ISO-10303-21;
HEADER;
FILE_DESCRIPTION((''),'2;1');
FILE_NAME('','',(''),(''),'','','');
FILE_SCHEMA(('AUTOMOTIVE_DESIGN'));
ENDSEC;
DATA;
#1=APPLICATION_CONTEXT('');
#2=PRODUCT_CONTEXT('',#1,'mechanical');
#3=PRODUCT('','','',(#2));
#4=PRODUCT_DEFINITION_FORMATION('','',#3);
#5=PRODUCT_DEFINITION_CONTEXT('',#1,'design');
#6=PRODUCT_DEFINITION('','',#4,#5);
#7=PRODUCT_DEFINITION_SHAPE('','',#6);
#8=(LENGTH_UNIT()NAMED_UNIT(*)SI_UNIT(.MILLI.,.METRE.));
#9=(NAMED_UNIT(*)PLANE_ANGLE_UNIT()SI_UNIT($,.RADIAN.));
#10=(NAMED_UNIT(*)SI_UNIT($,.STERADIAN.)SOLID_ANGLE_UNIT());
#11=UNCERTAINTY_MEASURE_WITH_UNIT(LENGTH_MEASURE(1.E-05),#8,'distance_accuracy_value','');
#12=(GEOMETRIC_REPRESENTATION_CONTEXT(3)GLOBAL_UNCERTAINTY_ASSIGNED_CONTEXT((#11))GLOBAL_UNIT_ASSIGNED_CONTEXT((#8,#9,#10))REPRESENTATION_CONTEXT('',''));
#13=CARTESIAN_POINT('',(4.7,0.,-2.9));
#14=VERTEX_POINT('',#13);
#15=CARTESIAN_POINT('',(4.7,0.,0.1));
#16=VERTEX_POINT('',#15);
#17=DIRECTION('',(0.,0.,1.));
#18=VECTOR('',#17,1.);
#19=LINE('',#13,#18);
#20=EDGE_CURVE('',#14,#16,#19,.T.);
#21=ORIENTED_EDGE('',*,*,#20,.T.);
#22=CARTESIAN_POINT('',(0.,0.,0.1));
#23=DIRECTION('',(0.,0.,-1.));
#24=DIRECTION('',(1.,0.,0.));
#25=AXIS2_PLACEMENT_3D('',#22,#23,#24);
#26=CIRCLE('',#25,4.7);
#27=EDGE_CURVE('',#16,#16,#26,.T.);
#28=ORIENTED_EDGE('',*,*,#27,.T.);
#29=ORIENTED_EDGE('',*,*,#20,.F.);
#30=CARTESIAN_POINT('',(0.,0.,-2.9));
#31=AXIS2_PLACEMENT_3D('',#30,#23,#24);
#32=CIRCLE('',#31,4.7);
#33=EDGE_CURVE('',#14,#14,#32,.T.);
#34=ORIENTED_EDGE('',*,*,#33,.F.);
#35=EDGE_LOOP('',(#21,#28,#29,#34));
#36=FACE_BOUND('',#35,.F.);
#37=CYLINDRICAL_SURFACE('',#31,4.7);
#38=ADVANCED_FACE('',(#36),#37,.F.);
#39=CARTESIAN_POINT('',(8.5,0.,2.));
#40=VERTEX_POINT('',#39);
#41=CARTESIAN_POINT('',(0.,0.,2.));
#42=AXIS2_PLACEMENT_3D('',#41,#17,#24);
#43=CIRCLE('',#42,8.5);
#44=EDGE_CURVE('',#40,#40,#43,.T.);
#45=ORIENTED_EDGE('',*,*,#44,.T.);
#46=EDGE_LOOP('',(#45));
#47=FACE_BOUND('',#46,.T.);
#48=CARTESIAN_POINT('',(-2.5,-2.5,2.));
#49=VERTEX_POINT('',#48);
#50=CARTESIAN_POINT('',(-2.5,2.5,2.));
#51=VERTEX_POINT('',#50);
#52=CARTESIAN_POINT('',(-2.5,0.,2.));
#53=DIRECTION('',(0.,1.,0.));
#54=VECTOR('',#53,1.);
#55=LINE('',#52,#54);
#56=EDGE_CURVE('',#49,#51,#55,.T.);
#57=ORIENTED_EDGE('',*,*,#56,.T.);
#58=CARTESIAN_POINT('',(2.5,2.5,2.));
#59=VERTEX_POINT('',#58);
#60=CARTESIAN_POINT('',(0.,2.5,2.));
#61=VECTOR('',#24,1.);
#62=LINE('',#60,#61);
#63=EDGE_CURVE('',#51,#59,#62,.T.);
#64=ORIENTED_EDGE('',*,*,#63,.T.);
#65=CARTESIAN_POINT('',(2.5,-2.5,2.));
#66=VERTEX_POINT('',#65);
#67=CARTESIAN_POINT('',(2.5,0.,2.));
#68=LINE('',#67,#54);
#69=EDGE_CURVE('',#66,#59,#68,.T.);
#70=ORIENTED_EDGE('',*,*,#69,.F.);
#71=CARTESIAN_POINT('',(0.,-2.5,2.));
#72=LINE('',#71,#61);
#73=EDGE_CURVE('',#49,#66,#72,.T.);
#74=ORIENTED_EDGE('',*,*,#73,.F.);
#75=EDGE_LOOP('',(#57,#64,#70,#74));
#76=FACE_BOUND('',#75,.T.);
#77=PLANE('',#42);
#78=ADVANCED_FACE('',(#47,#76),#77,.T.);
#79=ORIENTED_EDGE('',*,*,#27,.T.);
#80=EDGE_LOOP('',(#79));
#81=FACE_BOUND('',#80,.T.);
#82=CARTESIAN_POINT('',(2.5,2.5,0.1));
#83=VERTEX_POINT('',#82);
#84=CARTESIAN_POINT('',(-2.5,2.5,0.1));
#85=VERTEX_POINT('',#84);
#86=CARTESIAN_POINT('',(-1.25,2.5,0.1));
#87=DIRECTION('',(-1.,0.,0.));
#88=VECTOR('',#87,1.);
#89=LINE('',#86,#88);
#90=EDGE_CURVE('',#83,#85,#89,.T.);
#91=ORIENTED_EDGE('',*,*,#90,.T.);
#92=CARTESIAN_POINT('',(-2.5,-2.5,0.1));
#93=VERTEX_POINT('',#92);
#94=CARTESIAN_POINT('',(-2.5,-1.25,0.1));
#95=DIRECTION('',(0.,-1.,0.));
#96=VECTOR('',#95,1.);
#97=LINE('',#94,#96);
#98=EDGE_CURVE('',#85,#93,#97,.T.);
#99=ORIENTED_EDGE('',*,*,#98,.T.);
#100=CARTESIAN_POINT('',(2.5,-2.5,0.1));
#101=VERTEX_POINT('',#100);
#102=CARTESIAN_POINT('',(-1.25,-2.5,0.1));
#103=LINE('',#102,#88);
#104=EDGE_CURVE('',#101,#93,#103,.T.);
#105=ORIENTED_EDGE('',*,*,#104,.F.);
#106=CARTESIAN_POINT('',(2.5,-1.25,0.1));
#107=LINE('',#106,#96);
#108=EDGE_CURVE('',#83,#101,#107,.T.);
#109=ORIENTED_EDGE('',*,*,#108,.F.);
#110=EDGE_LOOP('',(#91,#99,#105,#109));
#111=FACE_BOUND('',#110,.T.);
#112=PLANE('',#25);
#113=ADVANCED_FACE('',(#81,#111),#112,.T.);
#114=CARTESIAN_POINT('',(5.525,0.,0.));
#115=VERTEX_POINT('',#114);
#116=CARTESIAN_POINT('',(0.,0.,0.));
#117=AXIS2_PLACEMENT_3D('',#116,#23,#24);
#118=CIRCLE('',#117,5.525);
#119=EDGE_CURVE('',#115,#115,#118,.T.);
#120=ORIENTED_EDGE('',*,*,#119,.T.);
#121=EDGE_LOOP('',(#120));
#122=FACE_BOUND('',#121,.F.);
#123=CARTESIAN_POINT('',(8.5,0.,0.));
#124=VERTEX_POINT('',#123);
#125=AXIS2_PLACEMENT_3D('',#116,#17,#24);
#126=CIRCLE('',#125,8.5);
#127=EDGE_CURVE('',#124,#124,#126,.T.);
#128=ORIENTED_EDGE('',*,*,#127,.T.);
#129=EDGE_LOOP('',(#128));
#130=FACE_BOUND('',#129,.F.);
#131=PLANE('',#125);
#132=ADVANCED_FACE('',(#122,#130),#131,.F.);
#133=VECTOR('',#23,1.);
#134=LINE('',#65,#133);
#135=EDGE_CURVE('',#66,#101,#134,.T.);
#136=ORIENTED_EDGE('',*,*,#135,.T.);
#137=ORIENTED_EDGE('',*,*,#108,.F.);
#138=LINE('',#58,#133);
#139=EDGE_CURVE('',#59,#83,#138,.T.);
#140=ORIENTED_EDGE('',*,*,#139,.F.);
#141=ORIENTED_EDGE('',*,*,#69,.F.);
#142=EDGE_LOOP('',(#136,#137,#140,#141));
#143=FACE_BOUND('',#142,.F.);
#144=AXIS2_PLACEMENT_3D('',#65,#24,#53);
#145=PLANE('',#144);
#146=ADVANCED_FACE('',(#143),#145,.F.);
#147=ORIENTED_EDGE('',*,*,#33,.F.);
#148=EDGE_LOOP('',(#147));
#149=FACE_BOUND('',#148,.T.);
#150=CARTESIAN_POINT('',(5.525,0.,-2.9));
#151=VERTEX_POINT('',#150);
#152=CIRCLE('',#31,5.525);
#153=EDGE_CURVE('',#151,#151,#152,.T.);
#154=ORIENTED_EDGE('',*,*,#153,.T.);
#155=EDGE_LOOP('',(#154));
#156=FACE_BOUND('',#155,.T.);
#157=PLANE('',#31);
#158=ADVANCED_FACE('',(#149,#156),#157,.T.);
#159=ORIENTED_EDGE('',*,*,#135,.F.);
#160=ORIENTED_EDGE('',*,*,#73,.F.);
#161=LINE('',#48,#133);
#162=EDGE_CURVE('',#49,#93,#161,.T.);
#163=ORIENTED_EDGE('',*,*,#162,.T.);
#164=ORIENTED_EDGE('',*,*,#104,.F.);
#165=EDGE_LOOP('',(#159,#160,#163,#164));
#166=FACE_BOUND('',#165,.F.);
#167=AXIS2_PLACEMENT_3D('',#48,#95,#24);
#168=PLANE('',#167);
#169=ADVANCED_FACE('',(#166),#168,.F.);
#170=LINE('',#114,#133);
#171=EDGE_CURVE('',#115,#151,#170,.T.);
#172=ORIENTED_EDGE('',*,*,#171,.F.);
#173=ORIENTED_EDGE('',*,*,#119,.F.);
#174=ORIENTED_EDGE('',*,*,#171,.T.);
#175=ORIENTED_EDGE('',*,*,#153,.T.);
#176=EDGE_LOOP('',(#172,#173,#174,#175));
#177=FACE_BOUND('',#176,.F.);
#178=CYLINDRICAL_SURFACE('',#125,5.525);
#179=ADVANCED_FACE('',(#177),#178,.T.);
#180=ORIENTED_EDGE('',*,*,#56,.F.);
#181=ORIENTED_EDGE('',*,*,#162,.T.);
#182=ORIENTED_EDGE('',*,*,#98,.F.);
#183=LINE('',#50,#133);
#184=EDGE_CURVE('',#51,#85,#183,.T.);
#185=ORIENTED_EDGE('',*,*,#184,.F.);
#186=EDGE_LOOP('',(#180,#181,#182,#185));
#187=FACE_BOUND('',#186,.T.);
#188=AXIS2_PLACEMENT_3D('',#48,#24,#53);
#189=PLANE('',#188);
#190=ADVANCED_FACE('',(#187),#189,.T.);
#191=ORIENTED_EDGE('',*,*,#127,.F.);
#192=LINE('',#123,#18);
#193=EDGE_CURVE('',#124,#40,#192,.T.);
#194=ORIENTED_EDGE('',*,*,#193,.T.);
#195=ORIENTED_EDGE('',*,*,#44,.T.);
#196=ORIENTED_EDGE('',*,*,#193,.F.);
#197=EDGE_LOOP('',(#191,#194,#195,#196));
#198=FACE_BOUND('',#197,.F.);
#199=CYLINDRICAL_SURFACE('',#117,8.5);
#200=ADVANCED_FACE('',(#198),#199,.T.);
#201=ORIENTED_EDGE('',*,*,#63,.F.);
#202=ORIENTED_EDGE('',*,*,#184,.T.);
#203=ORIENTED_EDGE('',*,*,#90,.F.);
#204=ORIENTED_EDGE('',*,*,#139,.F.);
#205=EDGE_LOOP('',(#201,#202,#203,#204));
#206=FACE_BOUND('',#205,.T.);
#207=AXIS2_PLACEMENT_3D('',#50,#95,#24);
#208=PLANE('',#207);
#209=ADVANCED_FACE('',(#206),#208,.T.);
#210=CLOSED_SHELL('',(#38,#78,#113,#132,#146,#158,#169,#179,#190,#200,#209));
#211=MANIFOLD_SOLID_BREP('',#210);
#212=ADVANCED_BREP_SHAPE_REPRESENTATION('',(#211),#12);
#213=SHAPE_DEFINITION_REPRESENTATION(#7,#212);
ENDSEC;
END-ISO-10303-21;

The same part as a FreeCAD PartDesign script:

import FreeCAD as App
import Part
import Sketcher

doc = App.newDocument("Part")
params = doc.addObject("Spreadsheet::Sheet", "Params")
for row, (alias, value) in enumerate([
    ("sketch1_diameter", "17 mm"),
    ("pad1_length", "2 mm"),
    ("sketch2_diameter", "11.05 mm"),
    ("pad2_length", "2.9 mm"),
    ("sketch3_diameter", "9.4 mm"),
    ("pocket1_length", "3 mm"),
    ("sketch4_width", "5 mm"),
    ("pocket2_length", "25 mm"),
], start=1):
    params.set(f"A{row}", alias)
    params.set(f"B{row}", "=" + value)
    params.setAlias(f"B{row}", alias)

body = doc.addObject("PartDesign::Body", "Body")

# Sketch on XY plane
sketch1 = body.newObject("Sketcher::SketchObject", "Sketch")
sketch1.AttachmentSupport = (doc.getObject("XY_Plane"), [""])
sketch1.MapMode = "FlatFace"
sketch1.addGeometry(Part.Circle(App.Vector(0, 0, 0), App.Vector(0, 0, 1), 8.5), False)
sketch1.addConstraint(Sketcher.Constraint("Coincident", 0, 3, -1, 1))
sketch1.addConstraint(Sketcher.Constraint("Diameter", 0, 17.0))
sketch1.setExpression("Constraints[1]", "Params.sketch1_diameter")
pad1 = body.newObject("PartDesign::Pad", "Pad")
pad1.Profile = sketch1
pad1.setExpression("Length", "Params.pad1_length")

# Sketch on XY plane
sketch2 = body.newObject("Sketcher::SketchObject", "Sketch001")
sketch2.AttachmentSupport = (doc.getObject("XY_Plane"), [""])
sketch2.MapMode = "FlatFace"
sketch2.addGeometry(Part.Circle(App.Vector(0, 0, 0), App.Vector(0, 0, 1), 5.525), False)
sketch2.addConstraint(Sketcher.Constraint("Coincident", 0, 3, -1, 1))
sketch2.addConstraint(Sketcher.Constraint("Diameter", 0, 11.05))
sketch2.setExpression("Constraints[1]", "Params.sketch2_diameter")
pad2 = body.newObject("PartDesign::Pad", "Pad001")
pad2.Profile = sketch2
pad2.setExpression("Length", "Params.pad2_length")
pad2.Reversed = True

# Sketch on XY plane
sketch3 = body.newObject("Sketcher::SketchObject", "Sketch002")
sketch3.AttachmentSupport = (doc.getObject("XY_Plane"), [""])
sketch3.MapMode = "FlatFace"
sketch3.AttachmentOffset = App.Placement(App.Vector(0, 0, -2.9), App.Rotation())
sketch3.addGeometry(Part.Circle(App.Vector(0, 0, 0), App.Vector(0, 0, 1), 4.7), False)
sketch3.addConstraint(Sketcher.Constraint("Coincident", 0, 3, -1, 1))
sketch3.addConstraint(Sketcher.Constraint("Diameter", 0, 9.4))
sketch3.setExpression("Constraints[1]", "Params.sketch3_diameter")
pocket1 = body.newObject("PartDesign::Pocket", "Pocket")
pocket1.Profile = sketch3
pocket1.setExpression("Length", "Params.pocket1_length")
pocket1.Reversed = True

# Sketch on XY plane
sketch4 = body.newObject("Sketcher::SketchObject", "Sketch003")
sketch4.AttachmentSupport = (doc.getObject("XY_Plane"), [""])
sketch4.MapMode = "FlatFace"
sketch4.AttachmentOffset = App.Placement(App.Vector(0, 0, 2), App.Rotation())
sketch4.addGeometry(Part.LineSegment(App.Vector(-2.5, 2.5, 0), App.Vector(-2.5, -2.5, 0)), False)
sketch4.addGeometry(Part.LineSegment(App.Vector(-2.5, -2.5, 0), App.Vector(2.5, -2.5, 0)), False)
sketch4.addGeometry(Part.LineSegment(App.Vector(2.5, -2.5, 0), App.Vector(2.5, 2.5, 0)), False)
sketch4.addGeometry(Part.LineSegment(App.Vector(2.5, 2.5, 0), App.Vector(-2.5, 2.5, 0)), False)
sketch4.addConstraint(Sketcher.Constraint("Coincident", 0, 2, 1, 1))
sketch4.addConstraint(Sketcher.Constraint("Coincident", 1, 2, 2, 1))
sketch4.addConstraint(Sketcher.Constraint("Coincident", 2, 2, 3, 1))
sketch4.addConstraint(Sketcher.Constraint("Coincident", 3, 2, 0, 1))
sketch4.addConstraint(Sketcher.Constraint("Vertical", 0))
sketch4.addConstraint(Sketcher.Constraint("Horizontal", 1))
sketch4.addConstraint(Sketcher.Constraint("Vertical", 2))
sketch4.addConstraint(Sketcher.Constraint("Horizontal", 3))
sketch4.addConstraint(Sketcher.Constraint("Symmetric", 0, 2, 2, 2, -1, 1))
sketch4.addConstraint(Sketcher.Constraint("Equal", 3, 0))
sketch4.addConstraint(Sketcher.Constraint("DistanceX", 1, 1, 1, 2, 5.0))
sketch4.setExpression("Constraints[10]", "Params.sketch4_width")
pocket2 = body.newObject("PartDesign::Pocket", "Pocket001")
pocket2.Profile = sketch4
pocket2.setExpression("Length", "Params.pocket2_length")

doc.recompute()
